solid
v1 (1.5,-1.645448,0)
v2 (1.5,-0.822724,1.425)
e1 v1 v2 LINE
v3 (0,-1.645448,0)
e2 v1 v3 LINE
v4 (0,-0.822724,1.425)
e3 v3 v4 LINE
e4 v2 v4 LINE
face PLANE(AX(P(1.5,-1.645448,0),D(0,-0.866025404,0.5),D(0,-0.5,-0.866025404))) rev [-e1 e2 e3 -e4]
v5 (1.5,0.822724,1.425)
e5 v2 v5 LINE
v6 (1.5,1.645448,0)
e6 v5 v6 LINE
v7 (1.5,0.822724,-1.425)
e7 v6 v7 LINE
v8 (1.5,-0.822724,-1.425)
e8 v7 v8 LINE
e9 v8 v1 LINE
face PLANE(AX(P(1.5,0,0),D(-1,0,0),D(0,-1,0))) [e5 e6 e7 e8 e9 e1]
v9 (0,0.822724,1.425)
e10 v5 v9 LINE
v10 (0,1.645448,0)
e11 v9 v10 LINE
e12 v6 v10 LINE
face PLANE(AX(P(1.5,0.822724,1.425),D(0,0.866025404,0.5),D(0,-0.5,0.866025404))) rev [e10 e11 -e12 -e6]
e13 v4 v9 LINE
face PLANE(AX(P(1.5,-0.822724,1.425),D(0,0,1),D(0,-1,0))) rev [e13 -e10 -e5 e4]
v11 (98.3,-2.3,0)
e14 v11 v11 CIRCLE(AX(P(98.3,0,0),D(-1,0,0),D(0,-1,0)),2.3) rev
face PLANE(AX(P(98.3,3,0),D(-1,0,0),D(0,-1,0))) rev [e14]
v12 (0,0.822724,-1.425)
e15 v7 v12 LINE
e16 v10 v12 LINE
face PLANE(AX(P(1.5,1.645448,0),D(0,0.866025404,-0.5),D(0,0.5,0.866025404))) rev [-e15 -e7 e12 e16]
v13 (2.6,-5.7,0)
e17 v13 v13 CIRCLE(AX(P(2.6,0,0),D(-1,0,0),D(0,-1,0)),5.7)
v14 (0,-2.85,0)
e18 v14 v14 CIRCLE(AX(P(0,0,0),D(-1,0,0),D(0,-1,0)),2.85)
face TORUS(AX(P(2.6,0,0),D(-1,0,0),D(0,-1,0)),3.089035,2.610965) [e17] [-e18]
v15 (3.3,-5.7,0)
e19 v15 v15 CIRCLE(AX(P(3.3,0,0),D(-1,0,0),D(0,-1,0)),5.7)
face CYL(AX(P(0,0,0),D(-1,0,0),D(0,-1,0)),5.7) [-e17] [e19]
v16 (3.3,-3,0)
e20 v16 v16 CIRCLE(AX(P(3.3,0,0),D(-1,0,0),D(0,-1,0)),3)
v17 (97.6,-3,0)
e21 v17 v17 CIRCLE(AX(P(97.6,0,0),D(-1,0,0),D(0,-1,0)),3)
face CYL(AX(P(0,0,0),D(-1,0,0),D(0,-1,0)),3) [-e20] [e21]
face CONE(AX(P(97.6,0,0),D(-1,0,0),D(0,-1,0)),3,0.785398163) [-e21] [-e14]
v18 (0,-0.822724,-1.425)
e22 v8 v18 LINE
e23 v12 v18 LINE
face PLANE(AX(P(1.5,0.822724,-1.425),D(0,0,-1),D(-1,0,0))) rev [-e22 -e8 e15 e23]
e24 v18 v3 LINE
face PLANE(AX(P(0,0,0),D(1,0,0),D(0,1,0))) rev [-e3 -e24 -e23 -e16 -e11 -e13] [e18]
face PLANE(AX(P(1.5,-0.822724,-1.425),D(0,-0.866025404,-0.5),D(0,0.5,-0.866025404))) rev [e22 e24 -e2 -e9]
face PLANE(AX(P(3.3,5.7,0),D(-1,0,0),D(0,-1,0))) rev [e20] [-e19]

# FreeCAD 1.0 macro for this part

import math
import FreeCAD as App
import Part
import Sketcher
from FreeCAD import Vector
Q = App.Units.Quantity


def edges_at(feature, points):
    """Names of the edges that pass closest to the given points."""
    edges = feature.Shape.Edges
    near = lambda p: min(range(len(edges)), key=lambda i: edges[i].distToShape(Part.Vertex(*p))[0])
    return sorted({f"Edge{near(p) + 1}" for p in points})

doc = App.newDocument("Part")
body = doc.addObject("PartDesign::Body", "Body")

sketch1 = body.newObject("Sketcher::SketchObject", "Sketch")
sketch1.AttachmentSupport = (doc.getObject("XY_Plane"), [""])
sketch1.MapMode = "FlatFace"
sketch1.addGeometry([
    Part.LineSegment(Vector(0, 0, 0), Vector(98.3, 0, 0)),
    Part.LineSegment(Vector(98.3, 0, 0), Vector(98.3, 3, 0)),
    Part.LineSegment(Vector(98.3, 3, 0), Vector(3.3, 3, 0)),
    Part.LineSegment(Vector(3.3, 3, 0), Vector(3.3, 5.7, 0)),
    Part.LineSegment(Vector(3.3, 5.7, 0), Vector(2.6, 5.7, 0)),
    Part.ArcOfCircle(Part.Circle(Vector(2.6, 3.1, 0), Vector(0, 0, 1), 2.6), math.radians(90), math.radians(185)),
    Part.LineSegment(Vector(0, 2.9, 0), Vector(0, 0, 0)),
], False)
sketch1.addConstraint([
    Sketcher.Constraint("Coincident", 0, 2, 1, 1),
    Sketcher.Constraint("Coincident", 1, 2, 2, 1),
    Sketcher.Constraint("Coincident", 2, 2, 3, 1),
    Sketcher.Constraint("Coincident", 3, 2, 4, 1),
    Sketcher.Constraint("Tangent", 4, 2, 5, 1),
    Sketcher.Constraint("Coincident", 5, 2, 6, 1),
    Sketcher.Constraint("Coincident", 6, 2, 0, 1),
    Sketcher.Constraint("Horizontal", 0),
    Sketcher.Constraint("Vertical", 1),
    Sketcher.Constraint("Horizontal", 2),
    Sketcher.Constraint("Vertical", 3),
    Sketcher.Constraint("Horizontal", 4),
    Sketcher.Constraint("Vertical", 6),
    Sketcher.Constraint("Coincident", 6, 2, -1, 1),
    Sketcher.Constraint("DistanceX", 2, 2, 2, 1, 95.0),
    Sketcher.Constraint("DistanceY", 1, 1, 1, 2, 3.0),
    Sketcher.Constraint("DistanceX", 0, 1, 0, 2, 98.3),
    Sketcher.Constraint("DistanceX", 4, 2, 4, 1, 0.7),
    Sketcher.Constraint("DistanceY", 3, 1, 3, 2, 2.7),
    Sketcher.Constraint("DistanceY", 6, 2, 6, 1, 2.85),
])
revolution = body.newObject("PartDesign::Revolution", "Revolution")
revolution.Profile = sketch1
revolution.ReferenceAxis = (sketch1, ["H_Axis"])
revolution.Angle = 360
doc.recompute()

chamfer = body.newObject("PartDesign::Chamfer", "Chamfer")
chamfer.Base = (revolution, edges_at(revolution, [(98.3, 3, 0)]))
chamfer.Size = 0.7

sketch2 = body.newObject("Sketcher::SketchObject", "Sketch001")
sketch2.AttachmentSupport = (doc.getObject("YZ_Plane"), [""])
sketch2.MapMode = "FlatFace"
sketch2.addGeometry([
    Part.LineSegment(Vector(1.6, 0, 0), Vector(0.8, -1.4, 0)),
    Part.LineSegment(Vector(0.8, -1.4, 0), Vector(-0.8, -1.4, 0)),
    Part.LineSegment(Vector(-0.8, -1.4, 0), Vector(-1.6, 0, 0)),
    Part.LineSegment(Vector(-1.6, 0, 0), Vector(-0.8, 1.4, 0)),
    Part.LineSegment(Vector(-0.8, 1.4, 0), Vector(0.8, 1.4, 0)),
    Part.LineSegment(Vector(0.8, 1.4, 0), Vector(1.6, 0, 0)),
], False)
sketch2.addConstraint([
    Sketcher.Constraint("Coincident", 0, 2, 1, 1),
    Sketcher.Constraint("Coincident", 1, 2, 2, 1),
    Sketcher.Constraint("Coincident", 2, 2, 3, 1),
    Sketcher.Constraint("Coincident", 3, 2, 4, 1),
    Sketcher.Constraint("Coincident", 4, 2, 5, 1),
    Sketcher.Constraint("Coincident", 5, 2, 0, 1),
    Sketcher.Constraint("Horizontal", 1),
    Sketcher.Constraint("Horizontal", 4),
    Sketcher.Constraint("Symmetric", 0, 2, 3, 2, -1, 1),
    Sketcher.Constraint("Symmetric", 2, 2, 5, 2, -1, 1),
    Sketcher.Constraint("PointOnObject", 2, 2, -1),
    Sketcher.Constraint("Parallel", 2, 5),
    Sketcher.Constraint("Vertical", 1, 2, 3, 2),
    Sketcher.Constraint("Angle", 0, Q("-120 deg")),
    Sketcher.Constraint("DistanceY", 1, 2, 3, 2, 2.85),
    Sketcher.Constraint("DistanceX", 1, 2, 1, 1, 1.645448),
])
pocket1 = body.newObject("PartDesign::Pocket", "Pocket")
pocket1.Profile = sketch2
pocket1.Length = 1.5
pocket1.Reversed = True

doc.recompute()
